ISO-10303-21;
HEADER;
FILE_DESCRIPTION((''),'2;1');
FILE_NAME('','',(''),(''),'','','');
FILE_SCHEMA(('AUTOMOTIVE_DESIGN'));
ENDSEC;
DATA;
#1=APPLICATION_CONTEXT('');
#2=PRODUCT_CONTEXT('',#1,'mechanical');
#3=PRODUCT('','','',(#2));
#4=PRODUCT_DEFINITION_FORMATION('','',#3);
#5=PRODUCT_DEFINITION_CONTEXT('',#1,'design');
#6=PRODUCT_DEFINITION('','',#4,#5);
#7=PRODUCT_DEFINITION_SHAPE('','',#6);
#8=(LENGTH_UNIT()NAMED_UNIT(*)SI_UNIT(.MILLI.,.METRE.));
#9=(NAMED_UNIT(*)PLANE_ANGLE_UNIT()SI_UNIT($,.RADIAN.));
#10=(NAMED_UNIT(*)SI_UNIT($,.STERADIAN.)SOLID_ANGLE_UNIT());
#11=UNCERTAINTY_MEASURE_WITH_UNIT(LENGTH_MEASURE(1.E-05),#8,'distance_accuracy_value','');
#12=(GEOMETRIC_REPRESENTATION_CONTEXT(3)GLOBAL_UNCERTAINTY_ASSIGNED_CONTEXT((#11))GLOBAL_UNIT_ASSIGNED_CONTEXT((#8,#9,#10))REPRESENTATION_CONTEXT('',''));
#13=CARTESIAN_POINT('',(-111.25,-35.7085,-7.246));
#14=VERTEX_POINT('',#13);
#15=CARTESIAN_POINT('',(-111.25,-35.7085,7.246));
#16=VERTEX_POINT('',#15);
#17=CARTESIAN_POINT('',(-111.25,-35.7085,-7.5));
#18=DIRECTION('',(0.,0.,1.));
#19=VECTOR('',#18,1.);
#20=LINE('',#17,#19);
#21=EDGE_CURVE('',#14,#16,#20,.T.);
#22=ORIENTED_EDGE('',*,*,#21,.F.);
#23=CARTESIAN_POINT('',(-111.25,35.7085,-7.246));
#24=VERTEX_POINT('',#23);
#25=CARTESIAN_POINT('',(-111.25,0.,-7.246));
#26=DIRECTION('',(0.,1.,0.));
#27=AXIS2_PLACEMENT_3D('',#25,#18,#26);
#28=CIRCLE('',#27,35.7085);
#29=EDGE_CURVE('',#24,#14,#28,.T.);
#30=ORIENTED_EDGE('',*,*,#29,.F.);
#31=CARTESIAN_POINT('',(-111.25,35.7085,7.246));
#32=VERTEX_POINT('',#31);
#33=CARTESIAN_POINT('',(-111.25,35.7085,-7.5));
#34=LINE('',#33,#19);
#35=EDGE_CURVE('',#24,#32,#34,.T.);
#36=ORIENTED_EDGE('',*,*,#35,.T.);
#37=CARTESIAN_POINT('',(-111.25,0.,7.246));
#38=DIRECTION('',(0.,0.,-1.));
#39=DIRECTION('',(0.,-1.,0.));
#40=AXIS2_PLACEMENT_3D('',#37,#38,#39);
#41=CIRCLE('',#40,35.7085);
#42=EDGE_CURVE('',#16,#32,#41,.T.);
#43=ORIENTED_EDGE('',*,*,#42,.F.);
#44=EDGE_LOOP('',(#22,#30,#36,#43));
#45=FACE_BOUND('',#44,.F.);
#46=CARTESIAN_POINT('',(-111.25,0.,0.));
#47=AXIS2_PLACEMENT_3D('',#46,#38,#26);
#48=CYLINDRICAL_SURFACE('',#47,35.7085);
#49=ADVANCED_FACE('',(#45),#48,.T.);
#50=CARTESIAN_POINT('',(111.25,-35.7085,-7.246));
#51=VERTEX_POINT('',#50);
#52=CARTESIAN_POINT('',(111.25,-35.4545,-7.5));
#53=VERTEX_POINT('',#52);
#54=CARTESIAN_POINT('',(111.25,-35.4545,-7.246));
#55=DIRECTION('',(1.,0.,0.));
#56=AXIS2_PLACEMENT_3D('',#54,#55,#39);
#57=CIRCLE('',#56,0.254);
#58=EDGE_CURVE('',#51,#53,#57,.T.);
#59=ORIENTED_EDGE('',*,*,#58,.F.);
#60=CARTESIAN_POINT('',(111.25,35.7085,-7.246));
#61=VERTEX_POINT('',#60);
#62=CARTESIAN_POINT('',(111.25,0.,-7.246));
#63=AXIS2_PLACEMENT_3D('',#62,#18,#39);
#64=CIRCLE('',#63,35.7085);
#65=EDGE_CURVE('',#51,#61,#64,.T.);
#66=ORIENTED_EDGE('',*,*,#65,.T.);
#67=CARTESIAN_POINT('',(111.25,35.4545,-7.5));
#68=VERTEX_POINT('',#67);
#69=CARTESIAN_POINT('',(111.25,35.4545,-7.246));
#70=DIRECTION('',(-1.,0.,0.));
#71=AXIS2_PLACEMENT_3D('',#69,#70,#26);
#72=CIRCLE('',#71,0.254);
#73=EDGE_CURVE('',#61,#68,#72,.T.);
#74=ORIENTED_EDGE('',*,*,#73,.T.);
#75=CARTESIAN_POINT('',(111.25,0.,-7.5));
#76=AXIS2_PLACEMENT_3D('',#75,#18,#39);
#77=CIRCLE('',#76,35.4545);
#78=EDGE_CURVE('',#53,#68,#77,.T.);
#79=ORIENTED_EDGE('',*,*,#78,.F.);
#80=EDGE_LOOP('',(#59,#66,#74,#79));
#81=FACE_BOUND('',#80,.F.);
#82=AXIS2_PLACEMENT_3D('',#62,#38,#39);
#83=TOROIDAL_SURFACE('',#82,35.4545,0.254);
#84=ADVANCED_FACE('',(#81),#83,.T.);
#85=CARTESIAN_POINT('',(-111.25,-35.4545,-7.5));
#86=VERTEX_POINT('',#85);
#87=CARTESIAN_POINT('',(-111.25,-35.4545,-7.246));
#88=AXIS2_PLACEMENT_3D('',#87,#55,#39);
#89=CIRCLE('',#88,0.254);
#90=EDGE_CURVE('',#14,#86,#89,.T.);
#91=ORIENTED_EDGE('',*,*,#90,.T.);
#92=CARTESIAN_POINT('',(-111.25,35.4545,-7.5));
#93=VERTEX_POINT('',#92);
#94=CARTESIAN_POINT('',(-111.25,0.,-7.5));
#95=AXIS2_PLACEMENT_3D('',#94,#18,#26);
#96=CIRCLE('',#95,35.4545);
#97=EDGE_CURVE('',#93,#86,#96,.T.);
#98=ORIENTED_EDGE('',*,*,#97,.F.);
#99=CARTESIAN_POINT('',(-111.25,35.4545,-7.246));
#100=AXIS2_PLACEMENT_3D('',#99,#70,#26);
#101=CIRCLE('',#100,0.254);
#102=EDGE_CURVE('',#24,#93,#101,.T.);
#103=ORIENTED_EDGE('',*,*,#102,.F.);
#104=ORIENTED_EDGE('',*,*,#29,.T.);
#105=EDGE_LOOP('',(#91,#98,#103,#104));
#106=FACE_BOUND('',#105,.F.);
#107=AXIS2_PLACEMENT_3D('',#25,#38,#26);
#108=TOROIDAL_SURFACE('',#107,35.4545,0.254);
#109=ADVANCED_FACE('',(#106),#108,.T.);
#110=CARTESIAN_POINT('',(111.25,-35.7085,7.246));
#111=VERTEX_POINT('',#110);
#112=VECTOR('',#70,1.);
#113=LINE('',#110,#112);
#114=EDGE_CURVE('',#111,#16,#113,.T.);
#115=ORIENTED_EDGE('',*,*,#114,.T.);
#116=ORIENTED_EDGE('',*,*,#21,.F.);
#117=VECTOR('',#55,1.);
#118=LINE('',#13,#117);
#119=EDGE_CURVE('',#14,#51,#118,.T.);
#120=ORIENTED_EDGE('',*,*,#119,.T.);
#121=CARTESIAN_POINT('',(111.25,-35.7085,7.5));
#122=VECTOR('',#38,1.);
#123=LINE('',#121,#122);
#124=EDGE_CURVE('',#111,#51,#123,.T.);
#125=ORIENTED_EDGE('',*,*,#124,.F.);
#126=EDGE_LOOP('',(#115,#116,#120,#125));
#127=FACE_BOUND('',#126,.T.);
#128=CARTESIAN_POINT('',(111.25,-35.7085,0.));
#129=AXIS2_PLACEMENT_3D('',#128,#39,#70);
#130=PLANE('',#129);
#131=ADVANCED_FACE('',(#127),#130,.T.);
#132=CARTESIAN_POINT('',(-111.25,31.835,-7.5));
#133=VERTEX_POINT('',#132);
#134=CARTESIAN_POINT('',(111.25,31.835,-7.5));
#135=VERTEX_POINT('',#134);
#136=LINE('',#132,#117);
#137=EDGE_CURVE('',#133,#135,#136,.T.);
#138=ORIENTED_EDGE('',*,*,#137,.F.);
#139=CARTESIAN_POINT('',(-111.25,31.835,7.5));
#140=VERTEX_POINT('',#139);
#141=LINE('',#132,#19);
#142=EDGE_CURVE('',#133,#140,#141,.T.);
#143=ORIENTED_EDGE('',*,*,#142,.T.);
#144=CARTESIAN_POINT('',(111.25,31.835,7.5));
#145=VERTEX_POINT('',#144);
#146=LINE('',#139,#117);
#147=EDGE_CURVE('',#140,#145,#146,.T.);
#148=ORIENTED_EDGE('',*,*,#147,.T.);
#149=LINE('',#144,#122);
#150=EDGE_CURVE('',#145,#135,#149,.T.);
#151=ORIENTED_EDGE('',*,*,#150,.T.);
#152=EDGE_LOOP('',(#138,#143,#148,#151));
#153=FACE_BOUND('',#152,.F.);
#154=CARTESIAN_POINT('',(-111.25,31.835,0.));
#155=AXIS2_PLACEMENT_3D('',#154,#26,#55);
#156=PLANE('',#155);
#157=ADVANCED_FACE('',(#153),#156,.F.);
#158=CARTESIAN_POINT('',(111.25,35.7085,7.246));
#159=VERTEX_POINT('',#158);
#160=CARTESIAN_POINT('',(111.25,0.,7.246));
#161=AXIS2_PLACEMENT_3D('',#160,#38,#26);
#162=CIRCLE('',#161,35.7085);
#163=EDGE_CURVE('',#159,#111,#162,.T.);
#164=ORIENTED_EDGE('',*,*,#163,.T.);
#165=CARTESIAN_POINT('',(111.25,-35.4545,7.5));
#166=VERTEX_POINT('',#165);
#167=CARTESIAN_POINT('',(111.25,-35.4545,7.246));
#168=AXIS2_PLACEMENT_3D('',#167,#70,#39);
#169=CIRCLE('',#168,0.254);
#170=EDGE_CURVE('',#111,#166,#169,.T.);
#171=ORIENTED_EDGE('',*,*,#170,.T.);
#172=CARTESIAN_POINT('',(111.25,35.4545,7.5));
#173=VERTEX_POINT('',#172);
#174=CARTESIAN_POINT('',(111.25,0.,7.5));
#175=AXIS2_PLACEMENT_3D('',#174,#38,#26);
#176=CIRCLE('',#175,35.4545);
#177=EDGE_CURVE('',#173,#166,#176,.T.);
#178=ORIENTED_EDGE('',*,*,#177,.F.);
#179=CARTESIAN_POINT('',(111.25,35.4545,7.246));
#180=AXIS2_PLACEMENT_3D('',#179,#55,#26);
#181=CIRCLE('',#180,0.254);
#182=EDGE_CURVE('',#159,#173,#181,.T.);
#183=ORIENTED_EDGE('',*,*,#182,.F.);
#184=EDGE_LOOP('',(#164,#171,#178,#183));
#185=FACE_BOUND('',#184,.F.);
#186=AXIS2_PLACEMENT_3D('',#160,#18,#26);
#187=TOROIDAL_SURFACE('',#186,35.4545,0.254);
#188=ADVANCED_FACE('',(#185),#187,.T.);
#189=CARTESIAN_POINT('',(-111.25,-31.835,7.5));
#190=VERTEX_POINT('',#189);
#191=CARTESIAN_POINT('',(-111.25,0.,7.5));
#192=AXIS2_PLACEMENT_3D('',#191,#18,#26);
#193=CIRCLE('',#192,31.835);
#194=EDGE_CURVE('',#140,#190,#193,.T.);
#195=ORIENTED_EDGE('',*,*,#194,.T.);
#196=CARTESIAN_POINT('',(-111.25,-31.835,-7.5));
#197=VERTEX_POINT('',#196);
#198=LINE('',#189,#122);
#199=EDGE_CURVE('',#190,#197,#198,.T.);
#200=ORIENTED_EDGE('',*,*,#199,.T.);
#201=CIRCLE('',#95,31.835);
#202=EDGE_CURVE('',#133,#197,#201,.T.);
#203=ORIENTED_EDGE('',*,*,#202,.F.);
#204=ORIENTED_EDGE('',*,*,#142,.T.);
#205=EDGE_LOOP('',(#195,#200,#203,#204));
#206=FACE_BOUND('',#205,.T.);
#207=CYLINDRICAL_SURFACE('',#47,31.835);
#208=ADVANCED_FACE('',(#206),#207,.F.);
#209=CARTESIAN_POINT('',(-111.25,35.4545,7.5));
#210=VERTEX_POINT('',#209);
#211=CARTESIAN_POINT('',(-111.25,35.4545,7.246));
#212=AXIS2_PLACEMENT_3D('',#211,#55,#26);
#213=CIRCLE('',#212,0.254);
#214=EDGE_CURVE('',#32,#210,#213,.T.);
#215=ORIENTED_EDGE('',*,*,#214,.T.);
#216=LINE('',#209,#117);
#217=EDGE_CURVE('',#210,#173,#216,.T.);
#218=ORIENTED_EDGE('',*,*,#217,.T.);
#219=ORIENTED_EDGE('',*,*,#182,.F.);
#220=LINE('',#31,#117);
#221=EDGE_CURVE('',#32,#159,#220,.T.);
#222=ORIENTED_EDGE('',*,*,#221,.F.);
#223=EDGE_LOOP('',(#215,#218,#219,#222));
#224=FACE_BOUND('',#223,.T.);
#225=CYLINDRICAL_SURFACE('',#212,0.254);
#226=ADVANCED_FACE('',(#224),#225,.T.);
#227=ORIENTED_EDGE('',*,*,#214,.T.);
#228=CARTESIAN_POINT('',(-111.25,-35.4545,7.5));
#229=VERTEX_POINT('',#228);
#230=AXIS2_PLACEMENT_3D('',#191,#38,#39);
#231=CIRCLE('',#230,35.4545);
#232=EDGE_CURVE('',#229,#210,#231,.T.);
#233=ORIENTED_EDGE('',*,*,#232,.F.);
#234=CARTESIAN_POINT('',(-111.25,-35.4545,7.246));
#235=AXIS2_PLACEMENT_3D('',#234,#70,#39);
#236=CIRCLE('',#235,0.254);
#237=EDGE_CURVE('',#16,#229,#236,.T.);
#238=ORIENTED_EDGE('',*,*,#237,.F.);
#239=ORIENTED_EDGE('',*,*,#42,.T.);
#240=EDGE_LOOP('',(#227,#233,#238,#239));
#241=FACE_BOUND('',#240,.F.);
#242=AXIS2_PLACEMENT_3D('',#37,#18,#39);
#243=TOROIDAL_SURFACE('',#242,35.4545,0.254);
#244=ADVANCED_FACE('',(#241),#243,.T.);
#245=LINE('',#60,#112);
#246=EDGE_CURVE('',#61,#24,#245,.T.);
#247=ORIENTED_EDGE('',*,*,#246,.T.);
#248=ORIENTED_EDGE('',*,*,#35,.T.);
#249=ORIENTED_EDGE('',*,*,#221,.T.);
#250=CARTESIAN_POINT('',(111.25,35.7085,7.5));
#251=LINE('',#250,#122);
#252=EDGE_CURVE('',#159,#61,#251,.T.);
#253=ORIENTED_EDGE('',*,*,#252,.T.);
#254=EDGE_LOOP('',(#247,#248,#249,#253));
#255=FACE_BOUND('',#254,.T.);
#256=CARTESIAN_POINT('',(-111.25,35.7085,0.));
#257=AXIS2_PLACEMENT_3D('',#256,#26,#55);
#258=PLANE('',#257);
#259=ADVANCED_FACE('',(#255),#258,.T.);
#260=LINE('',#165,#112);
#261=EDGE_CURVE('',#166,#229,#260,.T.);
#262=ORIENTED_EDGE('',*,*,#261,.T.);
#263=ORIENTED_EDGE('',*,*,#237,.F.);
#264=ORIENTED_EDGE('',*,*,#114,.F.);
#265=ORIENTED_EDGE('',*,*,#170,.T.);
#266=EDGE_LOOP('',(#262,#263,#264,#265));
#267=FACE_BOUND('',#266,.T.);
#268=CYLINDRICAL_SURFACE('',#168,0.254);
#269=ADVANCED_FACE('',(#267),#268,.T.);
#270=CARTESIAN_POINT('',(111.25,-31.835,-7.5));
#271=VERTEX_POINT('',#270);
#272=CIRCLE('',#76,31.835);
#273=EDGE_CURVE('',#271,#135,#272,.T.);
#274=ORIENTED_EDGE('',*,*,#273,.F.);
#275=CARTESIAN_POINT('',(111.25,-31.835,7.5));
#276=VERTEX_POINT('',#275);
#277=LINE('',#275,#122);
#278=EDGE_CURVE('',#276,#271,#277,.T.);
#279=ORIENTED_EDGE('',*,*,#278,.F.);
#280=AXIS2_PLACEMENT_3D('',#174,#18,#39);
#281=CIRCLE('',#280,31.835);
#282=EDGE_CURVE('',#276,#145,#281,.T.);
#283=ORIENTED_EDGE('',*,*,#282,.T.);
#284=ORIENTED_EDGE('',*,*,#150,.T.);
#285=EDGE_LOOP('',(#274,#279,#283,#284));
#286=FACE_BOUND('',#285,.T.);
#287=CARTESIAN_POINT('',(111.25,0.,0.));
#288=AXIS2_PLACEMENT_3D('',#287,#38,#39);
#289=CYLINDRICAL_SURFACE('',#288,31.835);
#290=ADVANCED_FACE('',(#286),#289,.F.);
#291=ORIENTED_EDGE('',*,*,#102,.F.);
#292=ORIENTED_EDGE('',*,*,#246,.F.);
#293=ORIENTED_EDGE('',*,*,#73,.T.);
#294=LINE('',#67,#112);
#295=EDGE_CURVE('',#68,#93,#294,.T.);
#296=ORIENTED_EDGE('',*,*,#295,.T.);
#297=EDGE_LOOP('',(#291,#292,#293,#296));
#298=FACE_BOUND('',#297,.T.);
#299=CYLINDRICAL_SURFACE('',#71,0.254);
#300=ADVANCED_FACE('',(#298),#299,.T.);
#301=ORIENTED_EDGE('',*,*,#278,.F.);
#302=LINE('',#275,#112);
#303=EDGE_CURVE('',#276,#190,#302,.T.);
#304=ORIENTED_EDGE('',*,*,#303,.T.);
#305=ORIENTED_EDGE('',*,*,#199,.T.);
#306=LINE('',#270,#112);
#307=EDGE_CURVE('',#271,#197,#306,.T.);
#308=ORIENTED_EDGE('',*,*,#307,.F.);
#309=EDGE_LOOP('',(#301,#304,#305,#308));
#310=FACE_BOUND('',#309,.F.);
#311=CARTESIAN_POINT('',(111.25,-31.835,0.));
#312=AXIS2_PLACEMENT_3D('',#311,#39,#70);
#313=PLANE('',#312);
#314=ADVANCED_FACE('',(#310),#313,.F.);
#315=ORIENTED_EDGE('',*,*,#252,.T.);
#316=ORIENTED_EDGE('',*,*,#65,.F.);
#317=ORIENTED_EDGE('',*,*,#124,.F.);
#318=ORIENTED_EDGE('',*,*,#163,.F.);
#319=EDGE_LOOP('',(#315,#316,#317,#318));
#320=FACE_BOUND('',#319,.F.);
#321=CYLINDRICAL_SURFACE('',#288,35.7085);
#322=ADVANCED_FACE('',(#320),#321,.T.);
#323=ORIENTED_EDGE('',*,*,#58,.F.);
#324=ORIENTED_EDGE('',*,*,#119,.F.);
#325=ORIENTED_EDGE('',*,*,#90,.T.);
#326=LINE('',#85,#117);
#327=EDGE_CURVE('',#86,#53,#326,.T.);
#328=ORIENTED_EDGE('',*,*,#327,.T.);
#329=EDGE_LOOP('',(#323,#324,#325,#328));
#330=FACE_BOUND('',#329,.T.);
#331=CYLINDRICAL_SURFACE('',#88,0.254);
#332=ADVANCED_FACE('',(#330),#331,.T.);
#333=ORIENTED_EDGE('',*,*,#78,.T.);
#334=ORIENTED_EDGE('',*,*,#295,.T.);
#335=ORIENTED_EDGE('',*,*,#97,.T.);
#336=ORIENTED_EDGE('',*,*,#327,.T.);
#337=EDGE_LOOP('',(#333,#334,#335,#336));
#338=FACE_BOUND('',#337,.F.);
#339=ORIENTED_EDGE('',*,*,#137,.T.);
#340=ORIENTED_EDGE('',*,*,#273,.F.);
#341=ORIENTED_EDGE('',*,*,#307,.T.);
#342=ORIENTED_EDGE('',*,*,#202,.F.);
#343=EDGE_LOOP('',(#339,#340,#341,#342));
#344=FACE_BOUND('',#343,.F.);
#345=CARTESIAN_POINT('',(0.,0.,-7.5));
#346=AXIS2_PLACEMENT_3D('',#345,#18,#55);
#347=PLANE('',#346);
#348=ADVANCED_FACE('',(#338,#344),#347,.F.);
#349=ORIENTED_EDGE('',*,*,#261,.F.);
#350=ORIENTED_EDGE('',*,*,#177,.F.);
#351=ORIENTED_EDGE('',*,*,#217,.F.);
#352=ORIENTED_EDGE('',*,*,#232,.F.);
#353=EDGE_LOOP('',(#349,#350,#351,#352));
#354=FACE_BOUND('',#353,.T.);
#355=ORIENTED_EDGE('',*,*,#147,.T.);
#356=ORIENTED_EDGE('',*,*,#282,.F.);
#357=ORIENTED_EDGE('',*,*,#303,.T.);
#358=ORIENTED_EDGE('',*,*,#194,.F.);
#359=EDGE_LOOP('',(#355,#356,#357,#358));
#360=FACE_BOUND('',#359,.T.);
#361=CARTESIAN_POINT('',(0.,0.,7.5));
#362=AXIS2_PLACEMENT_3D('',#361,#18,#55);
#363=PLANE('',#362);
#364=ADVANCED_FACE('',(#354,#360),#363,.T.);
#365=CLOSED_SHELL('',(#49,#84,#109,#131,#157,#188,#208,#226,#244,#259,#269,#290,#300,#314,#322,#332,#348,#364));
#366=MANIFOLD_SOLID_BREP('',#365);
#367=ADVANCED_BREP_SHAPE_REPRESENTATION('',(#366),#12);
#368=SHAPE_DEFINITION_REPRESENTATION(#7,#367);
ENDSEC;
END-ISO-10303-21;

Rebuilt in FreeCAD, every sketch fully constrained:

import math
import FreeCAD as App
import Part
import Sketcher
from FreeCAD import Vector
Q = App.Units.Quantity


def edges_at(feature, points):
    """Names of the edges that pass closest to the given points."""
    edges = feature.Shape.Edges
    near = lambda p: min(range(len(edges)), key=lambda i: edges[i].distToShape(Part.Vertex(*p))[0])
    return sorted({f"Edge{near(p) + 1}" for p in points})

doc = App.newDocument("Part")
body = doc.addObject("PartDesign::Body", "Body")

sketch1 = body.newObject("Sketcher::SketchObject", "Sketch")
sketch1.AttachmentSupport = (doc.getObject("XY_Plane"), [""])
sketch1.MapMode = "FlatFace"
sketch1.addGeometry([
    Part.LineSegment(Vector(111.25, 35.7085, 0), Vector(-111.25, 35.7085, 0)),
    Part.ArcOfCircle(Part.Circle(Vector(-111.25, 0, 0), Vector(0, 0, 1), 35.7085), math.radians(90), math.radians(270)),
    Part.LineSegment(Vector(-111.25, -35.7085, 0), Vector(111.25, -35.7085, 0)),
    Part.ArcOfCircle(Part.Circle(Vector(111.25, 0, 0), Vector(0, 0, 1), 35.7085), math.radians(-90), math.radians(90)),
    Part.ArcOfCircle(Part.Circle(Vector(-111.25, 0, 0), Vector(0, 0, 1), 31.835), math.radians(90), math.radians(270)),
    Part.LineSegment(Vector(-111.25, 31.835, 0), Vector(111.25, 31.835, 0)),
    Part.ArcOfCircle(Part.Circle(Vector(111.25, 0, 0), Vector(0, 0, 1), 31.835), math.radians(-90), math.radians(90)),
    Part.LineSegment(Vector(111.25, -31.835, 0), Vector(-111.25, -31.835, 0)),
], False)
sketch1.addConstraint([
    Sketcher.Constraint("Tangent", 0, 2, 1, 1),
    Sketcher.Constraint("Tangent", 1, 2, 2, 1),
    Sketcher.Constraint("Tangent", 2, 2, 3, 1),
    Sketcher.Constraint("Tangent", 3, 2, 0, 1),
    Sketcher.Constraint("Tangent", 4, 1, 5, 1),
    Sketcher.Constraint("Tangent", 5, 2, 6, 2),
    Sketcher.Constraint("Tangent", 6, 1, 7, 1),
    Sketcher.Constraint("Tangent", 7, 2, 4, 2),
    Sketcher.Constraint("Horizontal", 0),
    Sketcher.Constraint("Horizontal", 2),
    Sketcher.Constraint("Horizontal", 5),
    Sketcher.Constraint("Horizontal", 7),
    Sketcher.Constraint("Coincident", 4, 3, 1, 3),
    Sketcher.Constraint("Symmetric", 1, 3, 3, 3, -1, 1),
    Sketcher.Constraint("Vertical", 6, 3, 2, 2),
    Sketcher.Constraint("DistanceX", 0, 2, 0, 1, Q("222.5 mm")),
    Sketcher.Constraint("Radius", 4, Q("31.835 mm")),
    Sketcher.Constraint("Radius", 1, Q("35.7085 mm")),
])
pad1 = body.newObject("PartDesign::Pad", "Pad")
pad1.Profile = sketch1
pad1.Length = 15
pad1.Midplane = True
doc.recompute()

fillet = body.newObject("PartDesign::Fillet", "Fillet")
fillet.Base = (pad1, edges_at(pad1, [
    (0, 35.709, 7.5),
    (-146.958, 0, 7.5),
    (0, -35.709, 7.5),
    (146.958, 0, 7.5),
    (146.958, 0, -7.5),
    (0, -35.709, -7.5),
    (-146.958, 0, -7.5),
    (0, 35.709, -7.5),
]))
fillet.Radius = 0.254

doc.recompute()
